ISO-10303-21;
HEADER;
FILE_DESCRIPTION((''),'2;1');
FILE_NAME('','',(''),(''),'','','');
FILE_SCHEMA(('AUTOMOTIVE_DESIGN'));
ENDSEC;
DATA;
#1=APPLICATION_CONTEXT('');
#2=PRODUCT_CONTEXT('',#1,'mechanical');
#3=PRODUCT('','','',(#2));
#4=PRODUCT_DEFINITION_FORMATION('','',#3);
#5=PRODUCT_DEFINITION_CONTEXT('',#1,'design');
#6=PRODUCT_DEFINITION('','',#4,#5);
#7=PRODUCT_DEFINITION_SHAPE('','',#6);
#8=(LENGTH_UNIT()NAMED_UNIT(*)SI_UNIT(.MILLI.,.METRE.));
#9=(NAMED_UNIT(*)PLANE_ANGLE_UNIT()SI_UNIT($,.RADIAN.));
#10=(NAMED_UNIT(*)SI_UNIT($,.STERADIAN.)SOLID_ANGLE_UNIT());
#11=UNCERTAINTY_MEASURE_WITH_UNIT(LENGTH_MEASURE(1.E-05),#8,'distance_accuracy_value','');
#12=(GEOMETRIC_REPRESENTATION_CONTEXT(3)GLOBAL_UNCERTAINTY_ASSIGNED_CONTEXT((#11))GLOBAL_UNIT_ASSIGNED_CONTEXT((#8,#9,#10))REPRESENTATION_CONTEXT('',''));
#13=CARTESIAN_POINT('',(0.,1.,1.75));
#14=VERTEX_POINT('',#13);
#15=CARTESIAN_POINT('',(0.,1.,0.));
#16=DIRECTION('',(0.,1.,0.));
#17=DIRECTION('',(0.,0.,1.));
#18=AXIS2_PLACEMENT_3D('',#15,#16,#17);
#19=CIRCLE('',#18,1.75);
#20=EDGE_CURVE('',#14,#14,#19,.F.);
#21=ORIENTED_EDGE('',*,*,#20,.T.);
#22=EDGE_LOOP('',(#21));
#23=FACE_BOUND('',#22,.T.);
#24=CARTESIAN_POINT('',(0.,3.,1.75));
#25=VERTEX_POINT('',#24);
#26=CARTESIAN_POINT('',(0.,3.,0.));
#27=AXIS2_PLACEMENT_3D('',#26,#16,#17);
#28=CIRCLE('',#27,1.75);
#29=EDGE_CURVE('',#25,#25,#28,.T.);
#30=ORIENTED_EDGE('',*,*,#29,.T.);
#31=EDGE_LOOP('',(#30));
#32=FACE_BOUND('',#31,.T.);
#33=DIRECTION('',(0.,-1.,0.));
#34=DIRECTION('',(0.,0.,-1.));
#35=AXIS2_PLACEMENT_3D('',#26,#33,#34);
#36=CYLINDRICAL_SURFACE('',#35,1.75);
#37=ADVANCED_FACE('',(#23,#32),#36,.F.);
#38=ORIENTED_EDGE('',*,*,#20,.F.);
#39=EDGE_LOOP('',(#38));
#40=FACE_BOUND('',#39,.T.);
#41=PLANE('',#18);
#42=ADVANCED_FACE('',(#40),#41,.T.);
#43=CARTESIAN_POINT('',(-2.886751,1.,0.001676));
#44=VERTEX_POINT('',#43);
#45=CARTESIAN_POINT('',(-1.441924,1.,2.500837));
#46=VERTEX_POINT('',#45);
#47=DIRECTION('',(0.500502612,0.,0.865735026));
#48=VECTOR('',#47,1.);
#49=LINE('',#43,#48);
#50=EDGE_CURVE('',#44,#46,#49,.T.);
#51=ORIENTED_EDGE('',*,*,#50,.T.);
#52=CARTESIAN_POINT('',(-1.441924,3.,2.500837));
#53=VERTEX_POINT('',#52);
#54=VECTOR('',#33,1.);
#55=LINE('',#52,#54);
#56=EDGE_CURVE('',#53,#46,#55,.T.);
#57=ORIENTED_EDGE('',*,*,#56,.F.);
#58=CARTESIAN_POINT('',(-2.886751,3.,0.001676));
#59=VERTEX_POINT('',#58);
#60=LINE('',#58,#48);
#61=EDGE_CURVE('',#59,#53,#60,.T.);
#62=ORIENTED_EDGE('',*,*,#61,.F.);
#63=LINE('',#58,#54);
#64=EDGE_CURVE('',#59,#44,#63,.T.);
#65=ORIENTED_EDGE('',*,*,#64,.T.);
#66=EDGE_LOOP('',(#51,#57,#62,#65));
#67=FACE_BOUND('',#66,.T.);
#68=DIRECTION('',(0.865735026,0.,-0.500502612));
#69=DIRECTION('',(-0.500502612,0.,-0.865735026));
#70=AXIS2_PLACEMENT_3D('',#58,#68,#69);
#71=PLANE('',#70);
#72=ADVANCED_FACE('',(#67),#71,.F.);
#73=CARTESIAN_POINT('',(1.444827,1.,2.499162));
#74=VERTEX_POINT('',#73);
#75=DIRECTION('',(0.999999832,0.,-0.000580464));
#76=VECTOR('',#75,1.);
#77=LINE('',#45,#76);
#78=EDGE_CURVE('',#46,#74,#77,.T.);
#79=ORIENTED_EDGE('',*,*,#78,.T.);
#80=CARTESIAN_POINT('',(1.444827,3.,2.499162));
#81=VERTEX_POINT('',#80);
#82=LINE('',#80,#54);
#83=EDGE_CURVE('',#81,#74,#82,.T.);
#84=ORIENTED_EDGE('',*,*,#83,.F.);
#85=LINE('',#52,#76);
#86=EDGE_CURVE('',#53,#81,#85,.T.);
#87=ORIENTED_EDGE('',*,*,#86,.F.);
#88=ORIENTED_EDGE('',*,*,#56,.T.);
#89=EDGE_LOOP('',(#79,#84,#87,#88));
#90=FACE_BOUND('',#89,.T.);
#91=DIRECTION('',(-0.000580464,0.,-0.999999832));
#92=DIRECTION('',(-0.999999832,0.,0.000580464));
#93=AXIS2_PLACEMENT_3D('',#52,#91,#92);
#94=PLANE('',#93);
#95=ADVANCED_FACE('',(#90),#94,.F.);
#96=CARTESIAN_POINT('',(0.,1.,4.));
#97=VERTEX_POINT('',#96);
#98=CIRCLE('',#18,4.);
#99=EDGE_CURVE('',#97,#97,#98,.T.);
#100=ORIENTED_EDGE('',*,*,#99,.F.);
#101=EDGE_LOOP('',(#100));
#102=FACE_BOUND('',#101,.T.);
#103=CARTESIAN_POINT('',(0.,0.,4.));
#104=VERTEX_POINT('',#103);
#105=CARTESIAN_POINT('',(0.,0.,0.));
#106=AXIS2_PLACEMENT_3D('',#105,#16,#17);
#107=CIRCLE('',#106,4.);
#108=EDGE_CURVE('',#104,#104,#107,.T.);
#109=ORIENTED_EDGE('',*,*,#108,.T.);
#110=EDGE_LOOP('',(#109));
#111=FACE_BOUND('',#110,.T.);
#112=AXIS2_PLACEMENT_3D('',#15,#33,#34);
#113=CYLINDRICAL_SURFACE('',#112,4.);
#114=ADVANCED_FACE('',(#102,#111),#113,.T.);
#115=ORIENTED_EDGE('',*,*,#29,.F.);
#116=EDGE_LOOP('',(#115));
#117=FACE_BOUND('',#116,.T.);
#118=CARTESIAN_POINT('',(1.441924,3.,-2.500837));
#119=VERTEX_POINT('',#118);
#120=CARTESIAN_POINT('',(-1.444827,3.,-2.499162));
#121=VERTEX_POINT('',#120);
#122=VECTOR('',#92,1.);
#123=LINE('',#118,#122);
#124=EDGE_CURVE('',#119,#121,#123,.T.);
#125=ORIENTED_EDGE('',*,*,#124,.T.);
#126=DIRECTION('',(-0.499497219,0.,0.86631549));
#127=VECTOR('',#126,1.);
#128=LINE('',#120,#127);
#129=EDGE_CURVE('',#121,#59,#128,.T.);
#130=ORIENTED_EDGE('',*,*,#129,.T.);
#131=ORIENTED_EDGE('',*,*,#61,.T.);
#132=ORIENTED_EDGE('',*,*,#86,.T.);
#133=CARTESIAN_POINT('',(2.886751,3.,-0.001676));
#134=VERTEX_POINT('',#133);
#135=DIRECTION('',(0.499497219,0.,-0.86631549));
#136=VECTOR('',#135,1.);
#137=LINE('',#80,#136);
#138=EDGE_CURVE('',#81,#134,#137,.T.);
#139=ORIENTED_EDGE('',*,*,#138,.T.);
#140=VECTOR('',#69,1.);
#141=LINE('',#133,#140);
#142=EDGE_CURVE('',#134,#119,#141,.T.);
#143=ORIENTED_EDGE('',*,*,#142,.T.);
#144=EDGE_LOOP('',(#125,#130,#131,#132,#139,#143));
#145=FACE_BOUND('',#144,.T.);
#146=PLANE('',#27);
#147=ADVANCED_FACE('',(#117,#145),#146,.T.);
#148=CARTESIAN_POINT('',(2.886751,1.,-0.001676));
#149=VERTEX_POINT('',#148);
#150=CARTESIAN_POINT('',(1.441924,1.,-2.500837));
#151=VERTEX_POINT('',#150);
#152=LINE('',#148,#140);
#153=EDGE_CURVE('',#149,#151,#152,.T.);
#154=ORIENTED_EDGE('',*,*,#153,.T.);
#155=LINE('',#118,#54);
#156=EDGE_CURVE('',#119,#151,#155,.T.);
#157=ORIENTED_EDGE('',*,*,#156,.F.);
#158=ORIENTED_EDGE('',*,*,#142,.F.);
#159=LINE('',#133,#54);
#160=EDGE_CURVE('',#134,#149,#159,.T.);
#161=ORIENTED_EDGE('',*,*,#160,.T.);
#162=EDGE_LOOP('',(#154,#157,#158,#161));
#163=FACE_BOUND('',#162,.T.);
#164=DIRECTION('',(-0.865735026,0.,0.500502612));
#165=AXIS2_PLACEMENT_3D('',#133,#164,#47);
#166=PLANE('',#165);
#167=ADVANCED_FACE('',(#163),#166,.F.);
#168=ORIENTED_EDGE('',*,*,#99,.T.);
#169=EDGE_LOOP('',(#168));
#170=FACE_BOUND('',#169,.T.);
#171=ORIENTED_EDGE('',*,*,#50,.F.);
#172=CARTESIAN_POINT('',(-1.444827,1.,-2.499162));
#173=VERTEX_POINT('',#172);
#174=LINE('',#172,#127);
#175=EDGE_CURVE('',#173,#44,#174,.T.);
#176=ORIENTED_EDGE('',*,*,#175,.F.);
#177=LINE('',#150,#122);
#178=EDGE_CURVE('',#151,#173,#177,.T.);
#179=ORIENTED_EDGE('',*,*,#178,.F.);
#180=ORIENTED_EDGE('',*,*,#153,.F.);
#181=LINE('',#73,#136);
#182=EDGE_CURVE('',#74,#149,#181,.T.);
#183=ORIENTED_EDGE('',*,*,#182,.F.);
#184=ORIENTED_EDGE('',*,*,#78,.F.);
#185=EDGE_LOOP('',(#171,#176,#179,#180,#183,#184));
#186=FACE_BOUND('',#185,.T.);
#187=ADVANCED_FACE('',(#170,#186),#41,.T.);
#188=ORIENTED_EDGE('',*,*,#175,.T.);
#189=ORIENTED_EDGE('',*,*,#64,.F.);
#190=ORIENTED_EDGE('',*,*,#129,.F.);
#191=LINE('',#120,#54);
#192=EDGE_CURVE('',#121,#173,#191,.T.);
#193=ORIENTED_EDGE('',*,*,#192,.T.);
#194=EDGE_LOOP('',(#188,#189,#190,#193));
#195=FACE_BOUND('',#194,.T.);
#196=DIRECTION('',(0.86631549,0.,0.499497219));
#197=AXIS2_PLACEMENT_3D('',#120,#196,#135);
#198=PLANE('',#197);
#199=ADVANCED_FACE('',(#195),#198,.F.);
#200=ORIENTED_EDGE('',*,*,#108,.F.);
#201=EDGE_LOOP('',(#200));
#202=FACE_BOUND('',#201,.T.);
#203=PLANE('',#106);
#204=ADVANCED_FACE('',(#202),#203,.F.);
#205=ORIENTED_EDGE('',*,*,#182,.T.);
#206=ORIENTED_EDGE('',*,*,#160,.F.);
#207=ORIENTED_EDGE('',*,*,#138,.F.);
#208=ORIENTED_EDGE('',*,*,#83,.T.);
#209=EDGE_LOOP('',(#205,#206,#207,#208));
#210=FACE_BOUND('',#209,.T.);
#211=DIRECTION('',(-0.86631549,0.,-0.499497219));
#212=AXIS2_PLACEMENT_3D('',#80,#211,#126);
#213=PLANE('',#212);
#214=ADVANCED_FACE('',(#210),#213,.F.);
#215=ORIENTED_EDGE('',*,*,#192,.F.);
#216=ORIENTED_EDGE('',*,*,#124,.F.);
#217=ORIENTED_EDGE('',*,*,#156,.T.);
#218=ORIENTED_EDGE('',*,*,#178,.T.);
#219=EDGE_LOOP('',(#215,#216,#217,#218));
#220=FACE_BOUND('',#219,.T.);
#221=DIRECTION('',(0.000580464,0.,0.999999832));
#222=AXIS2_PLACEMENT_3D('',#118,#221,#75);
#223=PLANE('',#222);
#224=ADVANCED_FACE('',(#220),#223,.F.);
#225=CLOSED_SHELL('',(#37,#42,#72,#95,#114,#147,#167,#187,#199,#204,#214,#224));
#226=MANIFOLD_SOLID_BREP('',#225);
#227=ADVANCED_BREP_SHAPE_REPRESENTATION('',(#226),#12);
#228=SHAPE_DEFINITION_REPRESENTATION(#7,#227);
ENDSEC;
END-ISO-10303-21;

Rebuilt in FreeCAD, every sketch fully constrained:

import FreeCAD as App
import Part
import Sketcher

doc = App.newDocument("Part")
body = doc.addObject("PartDesign::Body", "Body")

# Sketch on XZ plane
sketch1 = body.newObject("Sketcher::SketchObject", "Sketch")
sketch1.AttachmentSupport = (doc.getObject("XZ_Plane"), [""])
sketch1.MapMode = "FlatFace"
sketch1.addGeometry(Part.Circle(App.Vector(0, 0, 0), App.Vector(0, 0, 1), 4), False)
sketch1.addConstraint([
    Sketcher.Constraint("Coincident", 0, 3, -1, 1),
    Sketcher.Constraint("Diameter", 0, 8.0),
])
pad1 = body.newObject("PartDesign::Pad", "Pad")
pad1.Profile = sketch1
pad1.Length = 1
pad1.Reversed = True

# Sketch on XZ plane
sketch2 = body.newObject("Sketcher::SketchObject", "Sketch001")
sketch2.AttachmentSupport = (doc.getObject("XZ_Plane"), [""])
sketch2.MapMode = "FlatFace"
sketch2.AttachmentOffset = App.Placement(App.Vector(0, 0, -1), App.Rotation())
sketch2.addGeometry([
    Part.LineSegment(App.Vector(1.4, -2.5, 0), App.Vector(-1.4, -2.5, 0)),  # 0
    Part.LineSegment(App.Vector(-1.4, -2.5, 0), App.Vector(-2.9, 0, 0)),  # 1
    Part.LineSegment(App.Vector(-2.9, 0, 0), App.Vector(-1.4, 2.5, 0)),  # 2
    Part.LineSegment(App.Vector(-1.4, 2.5, 0), App.Vector(1.4, 2.5, 0)),  # 3
    Part.LineSegment(App.Vector(1.4, 2.5, 0), App.Vector(2.9, 0, 0)),  # 4
    Part.LineSegment(App.Vector(2.9, 0, 0), App.Vector(1.4, -2.5, 0)),  # 5
    Part.Circle(App.Vector(0, 0, 0), App.Vector(0, 0, 1), 1.8),  # 6
], False)
sketch2.addConstraint([
    Sketcher.Constraint("Coincident", 0, 2, 1, 1),
    Sketcher.Constraint("Coincident", 1, 2, 2, 1),
    Sketcher.Constraint("Coincident", 2, 2, 3, 1),
    Sketcher.Constraint("Coincident", 3, 2, 4, 1),
    Sketcher.Constraint("Coincident", 4, 2, 5, 1),
    Sketcher.Constraint("Coincident", 5, 2, 0, 1),
    Sketcher.Constraint("Coincident", 6, 3, -1, 1),
    Sketcher.Constraint("Symmetric", 0, 2, 3, 2, -1, 1),
    Sketcher.Constraint("Symmetric", 1, 2, 4, 2, -1, 1),
    Sketcher.Constraint("Symmetric", 2, 2, 5, 2, -1, 1),
    Sketcher.Constraint("Equal", 0, 1),
    Sketcher.Constraint("Equal", 1, 2),
    Sketcher.Constraint("Diameter", 6, 3.5),
    Sketcher.Constraint("DistanceY", 0, 2, 2, 2, 4.999999),
    Sketcher.Constraint("DistanceX", 1, 2, 4, 2, 5.773502),
    Sketcher.Constraint("DistanceY", 0, 2, -1, 1, 2.499162),
    Sketcher.Constraint("DistanceY", 1, 2, 2, 2, 2.499162),
])
pad2 = body.newObject("PartDesign::Pad", "Pad001")
pad2.Profile = sketch2
pad2.Length = 2
pad2.Reversed = True

doc.recompute()
